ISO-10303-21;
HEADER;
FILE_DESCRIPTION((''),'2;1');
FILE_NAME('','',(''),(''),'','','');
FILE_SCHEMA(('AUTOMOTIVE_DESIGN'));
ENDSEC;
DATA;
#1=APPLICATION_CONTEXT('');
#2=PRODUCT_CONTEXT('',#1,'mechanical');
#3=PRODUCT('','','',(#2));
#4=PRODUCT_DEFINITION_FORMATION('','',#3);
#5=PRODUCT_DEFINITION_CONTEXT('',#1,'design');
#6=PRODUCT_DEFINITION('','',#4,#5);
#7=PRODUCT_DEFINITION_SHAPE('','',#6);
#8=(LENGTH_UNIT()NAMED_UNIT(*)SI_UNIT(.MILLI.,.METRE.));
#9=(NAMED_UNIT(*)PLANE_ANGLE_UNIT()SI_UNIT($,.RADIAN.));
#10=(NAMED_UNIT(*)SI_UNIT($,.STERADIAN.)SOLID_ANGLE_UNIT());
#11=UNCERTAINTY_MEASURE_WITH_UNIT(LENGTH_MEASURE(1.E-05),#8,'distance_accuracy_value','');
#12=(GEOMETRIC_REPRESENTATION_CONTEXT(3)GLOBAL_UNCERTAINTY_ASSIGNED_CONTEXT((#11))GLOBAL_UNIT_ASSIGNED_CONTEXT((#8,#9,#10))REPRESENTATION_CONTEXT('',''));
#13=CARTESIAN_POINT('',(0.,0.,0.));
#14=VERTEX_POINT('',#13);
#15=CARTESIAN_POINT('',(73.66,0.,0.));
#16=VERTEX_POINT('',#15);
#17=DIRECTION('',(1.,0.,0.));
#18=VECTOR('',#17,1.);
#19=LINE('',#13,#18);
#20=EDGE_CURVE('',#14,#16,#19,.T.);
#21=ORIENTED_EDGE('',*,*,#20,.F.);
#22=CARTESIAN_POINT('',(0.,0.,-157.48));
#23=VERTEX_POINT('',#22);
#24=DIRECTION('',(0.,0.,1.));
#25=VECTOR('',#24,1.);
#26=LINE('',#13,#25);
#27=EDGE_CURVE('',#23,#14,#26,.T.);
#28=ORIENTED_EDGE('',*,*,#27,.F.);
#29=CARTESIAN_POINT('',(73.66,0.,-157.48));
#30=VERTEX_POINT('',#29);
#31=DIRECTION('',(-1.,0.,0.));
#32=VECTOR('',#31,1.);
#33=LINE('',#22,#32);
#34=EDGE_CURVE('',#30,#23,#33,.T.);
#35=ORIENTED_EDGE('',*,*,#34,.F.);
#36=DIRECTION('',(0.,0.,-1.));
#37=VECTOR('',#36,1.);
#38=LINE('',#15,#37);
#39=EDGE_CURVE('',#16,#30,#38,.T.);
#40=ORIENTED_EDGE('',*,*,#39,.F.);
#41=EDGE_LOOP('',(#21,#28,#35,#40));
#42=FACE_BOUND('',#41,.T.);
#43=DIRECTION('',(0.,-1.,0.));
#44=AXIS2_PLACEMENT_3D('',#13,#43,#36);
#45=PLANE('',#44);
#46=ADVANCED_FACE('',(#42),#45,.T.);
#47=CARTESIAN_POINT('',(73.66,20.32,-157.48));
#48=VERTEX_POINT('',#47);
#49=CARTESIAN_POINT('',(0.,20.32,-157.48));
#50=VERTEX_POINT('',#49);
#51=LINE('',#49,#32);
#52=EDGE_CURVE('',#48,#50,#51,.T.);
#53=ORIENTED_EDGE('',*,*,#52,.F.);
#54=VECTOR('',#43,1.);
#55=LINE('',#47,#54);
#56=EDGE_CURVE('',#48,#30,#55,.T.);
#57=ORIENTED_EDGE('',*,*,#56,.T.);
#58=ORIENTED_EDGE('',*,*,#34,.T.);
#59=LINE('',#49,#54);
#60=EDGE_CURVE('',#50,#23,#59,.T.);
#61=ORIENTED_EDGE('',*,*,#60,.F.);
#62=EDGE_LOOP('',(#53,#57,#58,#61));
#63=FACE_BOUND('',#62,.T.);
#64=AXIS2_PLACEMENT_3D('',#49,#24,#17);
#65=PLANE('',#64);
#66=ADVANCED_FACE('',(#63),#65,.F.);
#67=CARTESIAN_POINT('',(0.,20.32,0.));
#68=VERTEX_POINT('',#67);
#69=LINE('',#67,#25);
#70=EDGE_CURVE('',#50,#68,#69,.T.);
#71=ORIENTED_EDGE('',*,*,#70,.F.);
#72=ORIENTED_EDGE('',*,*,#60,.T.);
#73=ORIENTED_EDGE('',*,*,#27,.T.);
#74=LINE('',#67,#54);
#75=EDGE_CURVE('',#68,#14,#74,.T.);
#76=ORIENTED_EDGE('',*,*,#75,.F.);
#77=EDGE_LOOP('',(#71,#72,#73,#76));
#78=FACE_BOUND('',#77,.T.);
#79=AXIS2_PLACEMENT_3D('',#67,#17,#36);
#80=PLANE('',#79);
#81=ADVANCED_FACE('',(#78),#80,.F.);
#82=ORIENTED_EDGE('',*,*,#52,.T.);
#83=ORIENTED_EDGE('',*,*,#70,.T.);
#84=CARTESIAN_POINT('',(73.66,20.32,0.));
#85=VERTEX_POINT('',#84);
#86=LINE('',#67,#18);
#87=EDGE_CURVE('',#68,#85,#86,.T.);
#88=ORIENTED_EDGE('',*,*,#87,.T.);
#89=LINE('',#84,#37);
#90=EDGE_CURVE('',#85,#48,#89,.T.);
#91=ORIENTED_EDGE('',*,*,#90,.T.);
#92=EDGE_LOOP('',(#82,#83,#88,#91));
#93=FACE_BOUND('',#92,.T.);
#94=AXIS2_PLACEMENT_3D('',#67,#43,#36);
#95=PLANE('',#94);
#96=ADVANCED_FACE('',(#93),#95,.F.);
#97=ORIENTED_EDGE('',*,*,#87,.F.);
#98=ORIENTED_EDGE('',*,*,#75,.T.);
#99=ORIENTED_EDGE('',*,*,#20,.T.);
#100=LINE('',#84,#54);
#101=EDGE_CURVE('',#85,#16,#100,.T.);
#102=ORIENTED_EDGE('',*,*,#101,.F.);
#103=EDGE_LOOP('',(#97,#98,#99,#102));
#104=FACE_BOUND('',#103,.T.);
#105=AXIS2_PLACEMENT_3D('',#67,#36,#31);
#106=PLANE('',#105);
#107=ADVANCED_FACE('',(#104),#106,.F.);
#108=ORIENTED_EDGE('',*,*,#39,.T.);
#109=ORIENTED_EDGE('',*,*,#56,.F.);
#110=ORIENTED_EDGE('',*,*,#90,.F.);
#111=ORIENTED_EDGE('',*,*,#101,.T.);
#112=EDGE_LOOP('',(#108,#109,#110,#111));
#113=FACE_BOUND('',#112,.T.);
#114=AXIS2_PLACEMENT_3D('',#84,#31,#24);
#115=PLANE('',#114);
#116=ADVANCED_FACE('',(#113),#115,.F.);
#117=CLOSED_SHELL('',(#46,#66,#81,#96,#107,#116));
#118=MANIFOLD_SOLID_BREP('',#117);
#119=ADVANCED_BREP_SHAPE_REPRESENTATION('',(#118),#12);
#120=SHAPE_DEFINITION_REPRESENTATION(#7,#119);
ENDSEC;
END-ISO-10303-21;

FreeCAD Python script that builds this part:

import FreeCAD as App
import Part
import Sketcher

V = App.Vector
Q = App.Units.Quantity

doc = App.newDocument("Part")
body = doc.addObject("PartDesign::Body", "Body")

sketch1 = body.newObject("Sketcher::SketchObject", "Sketch")
sketch1.AttachmentSupport = (doc.getObject("XZ_Plane"), [""])
sketch1.MapMode = "FlatFace"
sketch1.addGeometry(Part.LineSegment(V(0, -157, 0), V(0, 0, 0)), False)
sketch1.addGeometry(Part.LineSegment(V(0, 0, 0), V(74, 0, 0)), False)
sketch1.addGeometry(Part.LineSegment(V(74, 0, 0), V(74, -157, 0)), False)
sketch1.addGeometry(Part.LineSegment(V(74, -157, 0), V(0, -157, 0)), False)
sketch1.addConstraint(Sketcher.Constraint("Coincident", 0, 2, 1, 1))
sketch1.addConstraint(Sketcher.Constraint("Coincident", 1, 2, 2, 1))
sketch1.addConstraint(Sketcher.Constraint("Coincident", 2, 2, 3, 1))
sketch1.addConstraint(Sketcher.Constraint("Coincident", 3, 2, 0, 1))
sketch1.addConstraint(Sketcher.Constraint("Vertical", 0))
sketch1.addConstraint(Sketcher.Constraint("Horizontal", 1))
sketch1.addConstraint(Sketcher.Constraint("Vertical", 2))
sketch1.addConstraint(Sketcher.Constraint("Horizontal", 3))
sketch1.addConstraint(Sketcher.Constraint("Coincident", 0, 2, -1, 1))
sketch1.addConstraint(Sketcher.Constraint("DistanceX", 1, 1, 1, 2, Q("2.9 in")))
sketch1.addConstraint(Sketcher.Constraint("DistanceY", 0, 1, 0, 2, Q("6.2 in")))
pad1 = body.newObject("PartDesign::Pad", "Pad")
pad1.Profile = sketch1
pad1.Length = Q("0.8 in")
pad1.Reversed = True

doc.recompute()
